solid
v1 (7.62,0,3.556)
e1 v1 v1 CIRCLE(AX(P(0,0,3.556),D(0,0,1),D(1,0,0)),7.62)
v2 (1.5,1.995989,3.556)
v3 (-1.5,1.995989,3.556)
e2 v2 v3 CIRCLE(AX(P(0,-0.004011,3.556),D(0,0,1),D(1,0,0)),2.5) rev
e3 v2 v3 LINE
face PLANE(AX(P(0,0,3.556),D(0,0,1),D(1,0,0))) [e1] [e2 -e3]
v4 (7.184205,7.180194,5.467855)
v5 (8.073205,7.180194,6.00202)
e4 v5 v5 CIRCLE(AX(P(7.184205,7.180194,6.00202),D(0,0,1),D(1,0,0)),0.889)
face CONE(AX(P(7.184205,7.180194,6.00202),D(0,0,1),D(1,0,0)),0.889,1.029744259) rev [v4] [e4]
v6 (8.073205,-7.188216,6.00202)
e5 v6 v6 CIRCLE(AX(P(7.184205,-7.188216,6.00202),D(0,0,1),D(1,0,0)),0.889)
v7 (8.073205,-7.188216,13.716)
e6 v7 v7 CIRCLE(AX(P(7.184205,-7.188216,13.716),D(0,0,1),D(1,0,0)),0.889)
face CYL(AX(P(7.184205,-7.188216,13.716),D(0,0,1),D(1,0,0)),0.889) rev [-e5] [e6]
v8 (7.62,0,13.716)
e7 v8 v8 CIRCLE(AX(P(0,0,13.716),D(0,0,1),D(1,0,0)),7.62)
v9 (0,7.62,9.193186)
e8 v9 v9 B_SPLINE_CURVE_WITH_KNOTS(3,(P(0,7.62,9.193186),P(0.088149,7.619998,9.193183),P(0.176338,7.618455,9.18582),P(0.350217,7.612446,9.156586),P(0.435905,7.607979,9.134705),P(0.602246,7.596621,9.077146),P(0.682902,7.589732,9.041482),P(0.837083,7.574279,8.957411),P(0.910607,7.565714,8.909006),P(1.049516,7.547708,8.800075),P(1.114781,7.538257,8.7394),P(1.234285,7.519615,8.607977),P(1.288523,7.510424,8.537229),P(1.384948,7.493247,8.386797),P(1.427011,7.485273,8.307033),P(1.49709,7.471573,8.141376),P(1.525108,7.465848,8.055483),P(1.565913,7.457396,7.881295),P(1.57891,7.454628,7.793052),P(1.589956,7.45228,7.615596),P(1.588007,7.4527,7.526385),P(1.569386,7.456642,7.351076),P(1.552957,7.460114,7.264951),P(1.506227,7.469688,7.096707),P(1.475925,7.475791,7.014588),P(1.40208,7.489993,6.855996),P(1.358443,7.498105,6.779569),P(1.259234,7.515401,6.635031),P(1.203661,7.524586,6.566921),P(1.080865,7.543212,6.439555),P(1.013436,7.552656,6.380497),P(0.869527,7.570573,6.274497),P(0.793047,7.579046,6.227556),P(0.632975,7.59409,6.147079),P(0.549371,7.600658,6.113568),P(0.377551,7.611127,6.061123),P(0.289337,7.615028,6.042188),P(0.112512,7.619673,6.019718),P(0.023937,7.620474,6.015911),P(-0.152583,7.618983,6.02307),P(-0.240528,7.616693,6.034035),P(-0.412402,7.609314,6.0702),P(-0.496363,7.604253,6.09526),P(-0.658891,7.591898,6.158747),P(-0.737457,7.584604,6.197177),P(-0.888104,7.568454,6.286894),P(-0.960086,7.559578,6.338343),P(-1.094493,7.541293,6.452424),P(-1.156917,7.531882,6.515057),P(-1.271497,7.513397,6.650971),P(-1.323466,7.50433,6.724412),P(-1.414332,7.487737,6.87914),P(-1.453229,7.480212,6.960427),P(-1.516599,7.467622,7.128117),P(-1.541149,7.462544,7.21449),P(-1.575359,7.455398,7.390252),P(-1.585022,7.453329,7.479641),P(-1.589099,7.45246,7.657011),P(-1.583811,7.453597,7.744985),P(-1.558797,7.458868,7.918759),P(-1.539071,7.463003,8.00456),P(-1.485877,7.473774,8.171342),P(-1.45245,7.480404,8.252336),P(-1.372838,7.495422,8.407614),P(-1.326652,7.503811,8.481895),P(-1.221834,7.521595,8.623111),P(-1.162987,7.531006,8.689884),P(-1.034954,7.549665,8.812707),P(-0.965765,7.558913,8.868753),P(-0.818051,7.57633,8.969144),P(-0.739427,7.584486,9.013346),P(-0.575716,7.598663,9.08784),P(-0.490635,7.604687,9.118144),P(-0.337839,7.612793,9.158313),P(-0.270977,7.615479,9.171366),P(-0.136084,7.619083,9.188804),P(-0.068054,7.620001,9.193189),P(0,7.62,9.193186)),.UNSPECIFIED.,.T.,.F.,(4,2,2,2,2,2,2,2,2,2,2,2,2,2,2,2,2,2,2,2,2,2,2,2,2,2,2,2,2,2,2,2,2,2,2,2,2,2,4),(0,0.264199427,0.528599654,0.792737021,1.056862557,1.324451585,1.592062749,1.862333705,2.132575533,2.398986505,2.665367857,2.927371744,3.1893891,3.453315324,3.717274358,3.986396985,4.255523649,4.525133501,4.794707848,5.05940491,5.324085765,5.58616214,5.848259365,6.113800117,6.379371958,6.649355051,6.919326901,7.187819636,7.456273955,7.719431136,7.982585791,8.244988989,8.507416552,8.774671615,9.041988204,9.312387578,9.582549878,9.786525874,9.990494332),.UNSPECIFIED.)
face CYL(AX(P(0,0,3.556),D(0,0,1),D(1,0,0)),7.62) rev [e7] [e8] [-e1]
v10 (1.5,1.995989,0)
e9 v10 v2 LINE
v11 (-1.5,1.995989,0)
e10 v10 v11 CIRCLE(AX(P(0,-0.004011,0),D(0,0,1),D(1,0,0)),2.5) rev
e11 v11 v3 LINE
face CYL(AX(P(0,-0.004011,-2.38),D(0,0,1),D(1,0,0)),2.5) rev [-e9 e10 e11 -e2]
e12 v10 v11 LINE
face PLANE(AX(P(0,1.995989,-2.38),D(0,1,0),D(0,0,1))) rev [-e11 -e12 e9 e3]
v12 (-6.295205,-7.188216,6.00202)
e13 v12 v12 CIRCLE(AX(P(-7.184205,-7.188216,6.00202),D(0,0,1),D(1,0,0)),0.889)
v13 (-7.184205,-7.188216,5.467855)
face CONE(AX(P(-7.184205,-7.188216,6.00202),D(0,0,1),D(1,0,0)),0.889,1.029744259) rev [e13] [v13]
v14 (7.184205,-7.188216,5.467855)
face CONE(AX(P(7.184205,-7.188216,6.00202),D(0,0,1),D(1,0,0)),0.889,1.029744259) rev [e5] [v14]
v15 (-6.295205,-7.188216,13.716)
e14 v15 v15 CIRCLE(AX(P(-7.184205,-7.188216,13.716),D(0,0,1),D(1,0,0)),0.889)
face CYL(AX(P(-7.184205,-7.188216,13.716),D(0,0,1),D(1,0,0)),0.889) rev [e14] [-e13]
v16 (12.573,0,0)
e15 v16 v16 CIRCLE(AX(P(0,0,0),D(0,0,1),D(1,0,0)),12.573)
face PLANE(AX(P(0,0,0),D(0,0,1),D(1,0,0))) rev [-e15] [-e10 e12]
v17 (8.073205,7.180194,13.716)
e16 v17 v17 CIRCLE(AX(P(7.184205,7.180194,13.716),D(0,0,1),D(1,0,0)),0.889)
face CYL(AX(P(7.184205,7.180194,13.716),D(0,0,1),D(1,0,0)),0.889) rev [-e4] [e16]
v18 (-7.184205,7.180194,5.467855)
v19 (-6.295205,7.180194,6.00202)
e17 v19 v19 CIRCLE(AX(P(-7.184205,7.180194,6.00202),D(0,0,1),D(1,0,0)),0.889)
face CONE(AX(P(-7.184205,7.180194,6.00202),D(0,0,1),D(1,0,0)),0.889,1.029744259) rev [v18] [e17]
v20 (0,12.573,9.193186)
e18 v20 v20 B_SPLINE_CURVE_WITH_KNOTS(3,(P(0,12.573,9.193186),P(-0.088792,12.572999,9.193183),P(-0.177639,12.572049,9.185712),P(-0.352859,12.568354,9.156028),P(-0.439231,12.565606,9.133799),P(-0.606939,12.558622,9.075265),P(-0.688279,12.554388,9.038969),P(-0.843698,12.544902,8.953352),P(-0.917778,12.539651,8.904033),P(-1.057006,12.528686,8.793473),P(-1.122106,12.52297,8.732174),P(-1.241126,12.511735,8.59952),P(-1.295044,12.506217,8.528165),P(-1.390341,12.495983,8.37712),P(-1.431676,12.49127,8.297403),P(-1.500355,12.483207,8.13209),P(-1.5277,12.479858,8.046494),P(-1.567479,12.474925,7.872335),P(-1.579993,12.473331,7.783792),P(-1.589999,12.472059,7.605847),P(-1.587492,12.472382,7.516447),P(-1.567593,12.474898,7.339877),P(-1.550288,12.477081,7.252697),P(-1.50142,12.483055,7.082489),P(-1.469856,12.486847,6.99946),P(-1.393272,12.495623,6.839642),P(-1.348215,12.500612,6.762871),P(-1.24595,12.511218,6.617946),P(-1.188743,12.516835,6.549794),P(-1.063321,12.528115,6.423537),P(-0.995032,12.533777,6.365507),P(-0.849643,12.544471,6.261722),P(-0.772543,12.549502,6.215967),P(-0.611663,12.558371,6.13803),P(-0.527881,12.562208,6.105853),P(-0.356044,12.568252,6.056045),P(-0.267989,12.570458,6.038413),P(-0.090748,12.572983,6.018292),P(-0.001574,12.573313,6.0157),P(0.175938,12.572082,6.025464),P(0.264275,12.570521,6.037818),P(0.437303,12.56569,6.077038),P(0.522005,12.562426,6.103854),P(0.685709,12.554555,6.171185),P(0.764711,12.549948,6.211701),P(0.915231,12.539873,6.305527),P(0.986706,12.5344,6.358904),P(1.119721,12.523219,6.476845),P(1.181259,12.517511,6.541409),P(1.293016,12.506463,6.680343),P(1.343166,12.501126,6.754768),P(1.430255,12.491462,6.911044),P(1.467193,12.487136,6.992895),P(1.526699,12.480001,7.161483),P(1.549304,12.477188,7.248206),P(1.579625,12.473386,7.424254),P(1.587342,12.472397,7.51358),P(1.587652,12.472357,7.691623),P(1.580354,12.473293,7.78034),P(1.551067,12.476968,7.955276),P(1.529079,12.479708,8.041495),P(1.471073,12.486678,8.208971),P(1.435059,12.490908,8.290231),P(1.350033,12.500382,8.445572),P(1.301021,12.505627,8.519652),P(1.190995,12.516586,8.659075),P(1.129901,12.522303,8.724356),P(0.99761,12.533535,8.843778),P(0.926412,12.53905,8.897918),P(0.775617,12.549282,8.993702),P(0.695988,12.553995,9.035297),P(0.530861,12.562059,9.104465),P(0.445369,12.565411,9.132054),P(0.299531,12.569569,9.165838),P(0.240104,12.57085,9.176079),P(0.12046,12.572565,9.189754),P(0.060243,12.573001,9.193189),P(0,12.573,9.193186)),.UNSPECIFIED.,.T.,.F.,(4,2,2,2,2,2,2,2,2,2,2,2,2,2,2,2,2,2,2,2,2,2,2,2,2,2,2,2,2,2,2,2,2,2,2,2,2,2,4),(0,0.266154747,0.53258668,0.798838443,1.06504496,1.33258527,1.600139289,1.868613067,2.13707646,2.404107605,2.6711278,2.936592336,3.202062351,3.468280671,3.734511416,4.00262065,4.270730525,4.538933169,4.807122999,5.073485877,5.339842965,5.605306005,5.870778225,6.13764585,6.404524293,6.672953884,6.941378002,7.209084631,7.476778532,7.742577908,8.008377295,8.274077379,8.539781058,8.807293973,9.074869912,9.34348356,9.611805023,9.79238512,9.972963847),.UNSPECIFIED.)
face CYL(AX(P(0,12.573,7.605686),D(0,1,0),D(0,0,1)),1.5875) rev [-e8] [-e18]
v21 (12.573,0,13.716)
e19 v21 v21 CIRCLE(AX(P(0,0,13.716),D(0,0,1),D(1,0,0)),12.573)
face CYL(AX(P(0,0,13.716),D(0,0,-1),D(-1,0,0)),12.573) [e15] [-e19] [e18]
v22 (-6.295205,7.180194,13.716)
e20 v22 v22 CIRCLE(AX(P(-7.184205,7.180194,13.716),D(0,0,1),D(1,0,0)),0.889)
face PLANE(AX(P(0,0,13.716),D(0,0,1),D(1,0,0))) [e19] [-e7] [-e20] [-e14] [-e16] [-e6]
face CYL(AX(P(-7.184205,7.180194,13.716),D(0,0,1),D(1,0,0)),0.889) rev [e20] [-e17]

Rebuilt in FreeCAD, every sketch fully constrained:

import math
import FreeCAD as App
import Part
import Sketcher

V = App.Vector
Q = App.Units.Quantity


def add_polygon(sketch, points):
    """Adds a closed chain of lines whose ends are joined by coincident constraints."""
    first, n = sketch.GeometryCount, len(points)
    for a, b in zip(points, points[1:] + points[:1]):
        sketch.addGeometry(Part.LineSegment(App.Vector(*a, 0), App.Vector(*b, 0)), False)
    for i in range(n):
        sketch.addConstraint(Sketcher.Constraint("Coincident", first + i, 2, first + (i + 1) % n, 1))

doc = App.newDocument("Part")
body = doc.addObject("PartDesign::Body", "Body")

sketch1 = body.newObject("Sketcher::SketchObject", "Sketch")
sketch1.AttachmentSupport = (doc.getObject("XY_Plane"), [""])
sketch1.MapMode = "FlatFace"
sketch1.addGeometry(Part.Circle(V(0, 0, 0), V(0, 0, 1), 13), False)
sketch1.addConstraint([
    Sketcher.Constraint("Coincident", 0, 3, -1, 1),
    Sketcher.Constraint("Diameter", 0, Q("0.99 in")),
])
pad1 = body.newObject("PartDesign::Pad", "Pad")
pad1.Profile = sketch1
pad1.Length = Q("0.54 in")

sketch2 = body.newObject("Sketcher::SketchObject", "Sketch001")
sketch2.AttachmentSupport = (doc.getObject("XY_Plane"), [""])
sketch2.MapMode = "FlatFace"
sketch2.AttachmentOffset = App.Placement(V(0, 0, 0.54 * 25.4), App.Rotation())
sketch2.addGeometry(Part.Circle(V(0, 0, 0), V(0, 0, 1), 8), False)
sketch2.addConstraint([
    Sketcher.Constraint("Coincident", 0, 3, -1, 1),
    Sketcher.Constraint("Diameter", 0, Q("0.6 in")),
])
pocket1 = body.newObject("PartDesign::Pocket", "Pocket")
pocket1.Profile = sketch2
pocket1.Length = Q("0.4 in")

sketch3 = body.newObject("Sketcher::SketchObject", "Sketch002")
sketch3.AttachmentSupport = (doc.getObject("XZ_Plane"), [""])
sketch3.MapMode = "FlatFace"
sketch3.AttachmentOffset = App.Placement(V(0, 0, -0.495 * 25.4), App.Rotation())
sketch3.addGeometry(Part.Circle(V(0, 7.6, 0), V(0, 0, 1), 1.6), False)
sketch3.addConstraint([
    Sketcher.Constraint("PointOnObject", 0, 3, -2),
    Sketcher.Constraint("Diameter", 0, Q("0.125 in")),
    Sketcher.Constraint("DistanceY", -1, 1, 0, 3, Q("7.605686 mm")),
])
pocket2 = body.newObject("PartDesign::Pocket", "Pocket001")
pocket2.Profile = sketch3
pocket2.Type = "UpToFirst"
pocket2.Reversed = True

sketch4 = body.newObject("Sketcher::SketchObject", "Sketch003")
sketch4.AttachmentSupport = (doc.getObject("XY_Plane"), [""])
sketch4.MapMode = "FlatFace"
sketch4.AttachmentOffset = App.Placement(V(0, 0, 0.3 * 25.4), App.Rotation())
sketch4.addGeometry([
    Part.LineSegment(V(-1.5, 2, 0), V(1.5, 2, 0)),
    Part.ArcOfCircle(Part.Circle(V(0, 0, 0), V(0, 0, 1), 2.5), math.radians(180), math.radians(413)),
    Part.ArcOfCircle(Part.Circle(V(0, 0, 0), V(0, 0, 1), 2.5), math.radians(127), math.radians(180)),
], False)
sketch4.addConstraint([
    Sketcher.Constraint("Coincident", 0, 2, 1, 2),
    Sketcher.Constraint("Tangent", 1, 1, 2, 2),
    Sketcher.Constraint("Coincident", 2, 1, 0, 1),
    Sketcher.Constraint("Horizontal", 0),
    Sketcher.Constraint("Equal", 1, 2),
    Sketcher.Constraint("PointOnObject", 1, 3, -2),
    Sketcher.Constraint("Horizontal", 2, 3, 1, 1),
    Sketcher.Constraint("Radius", 1, Q("2.5 mm")),
    Sketcher.Constraint("DistanceX", 0, 1, 0, 2, Q("3 mm")),
    Sketcher.Constraint("DistanceY", 1, 3, -1, 1, Q("0.004011 mm")),
])
pocket3 = body.newObject("PartDesign::Pocket", "Pocket002")
pocket3.Profile = sketch4
pocket3.Type = "ThroughAll"
pocket3.Midplane = True

sketch5 = body.newObject("Sketcher::SketchObject", "Sketch004")
sketch5.AttachmentSupport = (doc.getObject("YZ_Plane"), [""])
sketch5.MapMode = "FlatFace"
sketch5.AttachmentOffset = App.Placement(V(0, 0, 7.184205), App.Rotation())
add_polygon(sketch5, [(-7.2, 5.5), (-7.2, 13.7), (-8.1, 13.7), (-8.1, 6)])
sketch5.addGeometry(Part.LineSegment(V(-7.2, 13.7, 0), V(-7.2, 5.5, 0)), True)
sketch5.addConstraint([
    Sketcher.Constraint("Vertical", 0),
    Sketcher.Constraint("Horizontal", 1),
    Sketcher.Constraint("Vertical", 2),
    Sketcher.Constraint("Vertical", 4),
    Sketcher.Constraint("Coincident", 4, 1, 0, 2),
    Sketcher.Constraint("Equal", 0, 4),
    Sketcher.Constraint("Angle", 3, Q("-31 deg")),
    Sketcher.Constraint("DistanceX", 1, 2, 1, 1, Q("0.035 in")),
    Sketcher.Constraint("DistanceY", -1, 1, 0, 2, Q("0.54 in")),
    Sketcher.Constraint("DistanceY", 2, 2, 2, 1, Q("0.3037 in")),
    Sketcher.Constraint("DistanceX", 0, 2, -1, 1, Q("7.188216 mm")),
])
groove = body.newObject("PartDesign::Groove", "Groove")
groove.Profile = sketch5
groove.ReferenceAxis = (sketch5, ["Axis0"])
groove.Angle = 360
doc.recompute()

datumline = body.newObject("PartDesign::Line", "DatumLine")
datumline.Placement = App.Placement(V(0, -0.004011, 0), App.Rotation(V(0, 0, 1), V(0, 0, 1)))
polarpattern = body.newObject("PartDesign::PolarPattern", "PolarPattern")
polarpattern.Originals = [groove]
polarpattern.Axis = (datumline, [""])
polarpattern.Angle = 360
polarpattern.Occurrences = 4
body.Tip = polarpattern

doc.recompute()
